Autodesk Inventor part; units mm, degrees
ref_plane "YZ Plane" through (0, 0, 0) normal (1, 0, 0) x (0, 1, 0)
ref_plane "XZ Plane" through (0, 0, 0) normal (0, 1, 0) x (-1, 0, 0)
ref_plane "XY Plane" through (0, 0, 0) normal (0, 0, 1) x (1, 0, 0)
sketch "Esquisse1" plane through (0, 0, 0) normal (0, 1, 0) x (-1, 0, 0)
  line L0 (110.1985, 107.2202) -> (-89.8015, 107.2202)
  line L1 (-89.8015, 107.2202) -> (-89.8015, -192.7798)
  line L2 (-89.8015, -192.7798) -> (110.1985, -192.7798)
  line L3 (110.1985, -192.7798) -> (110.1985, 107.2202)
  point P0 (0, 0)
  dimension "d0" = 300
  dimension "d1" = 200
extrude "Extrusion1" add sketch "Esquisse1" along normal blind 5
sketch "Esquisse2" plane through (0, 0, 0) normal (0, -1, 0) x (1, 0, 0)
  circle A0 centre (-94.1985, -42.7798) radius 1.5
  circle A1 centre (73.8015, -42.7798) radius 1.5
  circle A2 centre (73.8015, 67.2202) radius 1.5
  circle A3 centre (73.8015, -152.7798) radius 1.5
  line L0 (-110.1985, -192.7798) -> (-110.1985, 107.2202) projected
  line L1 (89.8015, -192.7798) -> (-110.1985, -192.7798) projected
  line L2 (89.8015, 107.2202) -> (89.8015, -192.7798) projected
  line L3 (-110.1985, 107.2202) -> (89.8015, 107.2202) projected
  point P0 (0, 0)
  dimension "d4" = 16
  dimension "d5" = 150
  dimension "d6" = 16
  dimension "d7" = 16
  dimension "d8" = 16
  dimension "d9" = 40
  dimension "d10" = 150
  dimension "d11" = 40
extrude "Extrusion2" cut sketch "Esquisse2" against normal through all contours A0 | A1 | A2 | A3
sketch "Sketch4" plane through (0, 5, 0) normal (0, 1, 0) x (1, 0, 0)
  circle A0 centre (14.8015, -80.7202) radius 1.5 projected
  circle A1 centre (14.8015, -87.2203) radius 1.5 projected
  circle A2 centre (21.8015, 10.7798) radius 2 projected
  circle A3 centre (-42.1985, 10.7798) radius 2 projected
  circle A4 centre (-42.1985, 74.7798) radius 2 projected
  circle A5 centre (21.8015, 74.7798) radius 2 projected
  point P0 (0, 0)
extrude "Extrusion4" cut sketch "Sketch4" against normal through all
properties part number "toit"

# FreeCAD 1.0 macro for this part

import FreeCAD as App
import Part
import Sketcher

V = App.Vector
Q = App.Units.Quantity


def add_polygon(sketch, points):
    """Adds a closed chain of lines whose ends are joined by coincident constraints."""
    first, n = sketch.GeometryCount, len(points)
    for a, b in zip(points, points[1:] + points[:1]):
        sketch.addGeometry(Part.LineSegment(App.Vector(*a, 0), App.Vector(*b, 0)), False)
    for i in range(n):
        sketch.addConstraint(Sketcher.Constraint("Coincident", first + i, 2, first + (i + 1) % n, 1))

doc = App.newDocument("Part")
body = doc.addObject("PartDesign::Body", "Body")

# Sketch on XZ plane
sketch1 = body.newObject("Sketcher::SketchObject", "Sketch")
sketch1.AttachmentSupport = (doc.getObject("XZ_Plane"), [""])
sketch1.MapMode = "FlatFace"
add_polygon(sketch1, [(-110, -193), (-110, 107), (90, 107), (90, -193)])  # lines 0-3
sketch1.addConstraint([
    Sketcher.Constraint("Vertical", 0),
    Sketcher.Constraint("Horizontal", 1),
    Sketcher.Constraint("Vertical", 2),
    Sketcher.Constraint("Horizontal", 3),
    Sketcher.Constraint("DistanceX", 1, 1, 1, 2, Q("200 mm")),
    Sketcher.Constraint("DistanceY", 0, 1, 0, 2, Q("300 mm")),
    Sketcher.Constraint("DistanceX", 0, 2, -1, 1, Q("110.1985 mm")),
    Sketcher.Constraint("DistanceY", -1, 1, 0, 2, Q("107.2202 mm")),
])
pad1 = body.newObject("PartDesign::Pad", "Pad")
pad1.Profile = sketch1
pad1.Length = 5
pad1.Reversed = True

# Sketch on XZ plane
sketch2 = body.newObject("Sketcher::SketchObject", "Sketch001")
sketch2.AttachmentSupport = (doc.getObject("XZ_Plane"), [""])
sketch2.MapMode = "FlatFace"
sketch2.addGeometry([
    Part.Circle(V(-94.2, -42.8, 0), V(0, 0, 1), 1.5),
    Part.Circle(V(73.8, -42.8, 0), V(0, 0, 1), 1.5),
    Part.Circle(V(73.8, 67.2, 0), V(0, 0, 1), 1.5),
    Part.Circle(V(73.8, -152.8, 0), V(0, 0, 1), 1.5),
], False)
sketch2.addConstraint([
    Sketcher.Constraint("Equal", 0, 1),
    Sketcher.Constraint("Equal", 1, 2),
    Sketcher.Constraint("Equal", 2, 3),
    Sketcher.Constraint("Horizontal", 0, 3, 1, 3),
    Sketcher.Constraint("Vertical", 1, 3, 2, 3),
    Sketcher.Constraint("Vertical", 2, 3, 3, 3),
    Sketcher.Constraint("Diameter", 0, Q("3 mm")),
    Sketcher.Constraint("DistanceX", 0, 3, 1, 3, Q("168 mm")),
    Sketcher.Constraint("DistanceY", 1, 3, 2, 3, Q("110 mm")),
    Sketcher.Constraint("DistanceY", 3, 3, 1, 3, Q("110 mm")),
    Sketcher.Constraint("DistanceX", 0, 3, -1, 1, Q("94.1985 mm")),
    Sketcher.Constraint("DistanceY", 0, 3, -1, 1, Q("42.7798 mm")),
])
pocket1 = body.newObject("PartDesign::Pocket", "Pocket")
pocket1.Profile = sketch2
pocket1.Type = "ThroughAll"

# Sketch on XZ plane
sketch3 = body.newObject("Sketcher::SketchObject", "Sketch002")
sketch3.AttachmentSupport = (doc.getObject("XZ_Plane"), [""])
sketch3.MapMode = "FlatFace"
sketch3.AttachmentOffset = App.Placement(V(0, 0, -5), App.Rotation())
sketch3.addGeometry([
    Part.Circle(V(14.8, 80.7, 0), V(0, 0, 1), 1.5),  # 0
    Part.Circle(V(14.8, 87.2, 0), V(0, 0, 1), 1.5),  # 1
    Part.Circle(V(21.8, -10.8, 0), V(0, 0, 1), 2),  # 2
    Part.Circle(V(-42.2, -10.8, 0), V(0, 0, 1), 2),  # 3
    Part.Circle(V(-42.2, -74.8, 0), V(0, 0, 1), 2),  # 4
    Part.Circle(V(21.8, -74.8, 0), V(0, 0, 1), 2),  # 5
], False)
sketch3.addConstraint([
    Sketcher.Constraint("Equal", 0, 1),
    Sketcher.Constraint("Equal", 2, 3),
    Sketcher.Constraint("Equal", 3, 4),
    Sketcher.Constraint("Equal", 4, 5),
    Sketcher.Constraint("Horizontal", 2, 3, 3, 3),
    Sketcher.Constraint("Horizontal", 4, 3, 5, 3),
    Sketcher.Constraint("Vertical", 0, 3, 1, 3),
    Sketcher.Constraint("Vertical", 3, 3, 4, 3),
    Sketcher.Constraint("Vertical", 2, 3, 5, 3),
    Sketcher.Constraint("Diameter", 0, Q("3 mm")),
    Sketcher.Constraint("Diameter", 2, Q("4 mm")),
    Sketcher.Constraint("DistanceX", 0, 3, 2, 3, Q("7 mm")),
    Sketcher.Constraint("DistanceY", 2, 3, 1, 3, Q("98 mm")),
    Sketcher.Constraint("DistanceX", 3, 3, 2, 3, Q("64 mm")),
    Sketcher.Constraint("DistanceY", 4, 3, 3, 3, Q("64 mm")),
    Sketcher.Constraint("DistanceY", 0, 3, 1, 3, Q("6.5 mm")),
    Sketcher.Constraint("DistanceX", -1, 1, 0, 3, Q("14.8015 mm")),
    Sketcher.Constraint("DistanceY", -1, 1, 0, 3, Q("80.7202 mm")),
])
pocket2 = body.newObject("PartDesign::Pocket", "Pocket001")
pocket2.Profile = sketch3
pocket2.Type = "ThroughAll"
pocket2.Reversed = True

doc.recompute()
